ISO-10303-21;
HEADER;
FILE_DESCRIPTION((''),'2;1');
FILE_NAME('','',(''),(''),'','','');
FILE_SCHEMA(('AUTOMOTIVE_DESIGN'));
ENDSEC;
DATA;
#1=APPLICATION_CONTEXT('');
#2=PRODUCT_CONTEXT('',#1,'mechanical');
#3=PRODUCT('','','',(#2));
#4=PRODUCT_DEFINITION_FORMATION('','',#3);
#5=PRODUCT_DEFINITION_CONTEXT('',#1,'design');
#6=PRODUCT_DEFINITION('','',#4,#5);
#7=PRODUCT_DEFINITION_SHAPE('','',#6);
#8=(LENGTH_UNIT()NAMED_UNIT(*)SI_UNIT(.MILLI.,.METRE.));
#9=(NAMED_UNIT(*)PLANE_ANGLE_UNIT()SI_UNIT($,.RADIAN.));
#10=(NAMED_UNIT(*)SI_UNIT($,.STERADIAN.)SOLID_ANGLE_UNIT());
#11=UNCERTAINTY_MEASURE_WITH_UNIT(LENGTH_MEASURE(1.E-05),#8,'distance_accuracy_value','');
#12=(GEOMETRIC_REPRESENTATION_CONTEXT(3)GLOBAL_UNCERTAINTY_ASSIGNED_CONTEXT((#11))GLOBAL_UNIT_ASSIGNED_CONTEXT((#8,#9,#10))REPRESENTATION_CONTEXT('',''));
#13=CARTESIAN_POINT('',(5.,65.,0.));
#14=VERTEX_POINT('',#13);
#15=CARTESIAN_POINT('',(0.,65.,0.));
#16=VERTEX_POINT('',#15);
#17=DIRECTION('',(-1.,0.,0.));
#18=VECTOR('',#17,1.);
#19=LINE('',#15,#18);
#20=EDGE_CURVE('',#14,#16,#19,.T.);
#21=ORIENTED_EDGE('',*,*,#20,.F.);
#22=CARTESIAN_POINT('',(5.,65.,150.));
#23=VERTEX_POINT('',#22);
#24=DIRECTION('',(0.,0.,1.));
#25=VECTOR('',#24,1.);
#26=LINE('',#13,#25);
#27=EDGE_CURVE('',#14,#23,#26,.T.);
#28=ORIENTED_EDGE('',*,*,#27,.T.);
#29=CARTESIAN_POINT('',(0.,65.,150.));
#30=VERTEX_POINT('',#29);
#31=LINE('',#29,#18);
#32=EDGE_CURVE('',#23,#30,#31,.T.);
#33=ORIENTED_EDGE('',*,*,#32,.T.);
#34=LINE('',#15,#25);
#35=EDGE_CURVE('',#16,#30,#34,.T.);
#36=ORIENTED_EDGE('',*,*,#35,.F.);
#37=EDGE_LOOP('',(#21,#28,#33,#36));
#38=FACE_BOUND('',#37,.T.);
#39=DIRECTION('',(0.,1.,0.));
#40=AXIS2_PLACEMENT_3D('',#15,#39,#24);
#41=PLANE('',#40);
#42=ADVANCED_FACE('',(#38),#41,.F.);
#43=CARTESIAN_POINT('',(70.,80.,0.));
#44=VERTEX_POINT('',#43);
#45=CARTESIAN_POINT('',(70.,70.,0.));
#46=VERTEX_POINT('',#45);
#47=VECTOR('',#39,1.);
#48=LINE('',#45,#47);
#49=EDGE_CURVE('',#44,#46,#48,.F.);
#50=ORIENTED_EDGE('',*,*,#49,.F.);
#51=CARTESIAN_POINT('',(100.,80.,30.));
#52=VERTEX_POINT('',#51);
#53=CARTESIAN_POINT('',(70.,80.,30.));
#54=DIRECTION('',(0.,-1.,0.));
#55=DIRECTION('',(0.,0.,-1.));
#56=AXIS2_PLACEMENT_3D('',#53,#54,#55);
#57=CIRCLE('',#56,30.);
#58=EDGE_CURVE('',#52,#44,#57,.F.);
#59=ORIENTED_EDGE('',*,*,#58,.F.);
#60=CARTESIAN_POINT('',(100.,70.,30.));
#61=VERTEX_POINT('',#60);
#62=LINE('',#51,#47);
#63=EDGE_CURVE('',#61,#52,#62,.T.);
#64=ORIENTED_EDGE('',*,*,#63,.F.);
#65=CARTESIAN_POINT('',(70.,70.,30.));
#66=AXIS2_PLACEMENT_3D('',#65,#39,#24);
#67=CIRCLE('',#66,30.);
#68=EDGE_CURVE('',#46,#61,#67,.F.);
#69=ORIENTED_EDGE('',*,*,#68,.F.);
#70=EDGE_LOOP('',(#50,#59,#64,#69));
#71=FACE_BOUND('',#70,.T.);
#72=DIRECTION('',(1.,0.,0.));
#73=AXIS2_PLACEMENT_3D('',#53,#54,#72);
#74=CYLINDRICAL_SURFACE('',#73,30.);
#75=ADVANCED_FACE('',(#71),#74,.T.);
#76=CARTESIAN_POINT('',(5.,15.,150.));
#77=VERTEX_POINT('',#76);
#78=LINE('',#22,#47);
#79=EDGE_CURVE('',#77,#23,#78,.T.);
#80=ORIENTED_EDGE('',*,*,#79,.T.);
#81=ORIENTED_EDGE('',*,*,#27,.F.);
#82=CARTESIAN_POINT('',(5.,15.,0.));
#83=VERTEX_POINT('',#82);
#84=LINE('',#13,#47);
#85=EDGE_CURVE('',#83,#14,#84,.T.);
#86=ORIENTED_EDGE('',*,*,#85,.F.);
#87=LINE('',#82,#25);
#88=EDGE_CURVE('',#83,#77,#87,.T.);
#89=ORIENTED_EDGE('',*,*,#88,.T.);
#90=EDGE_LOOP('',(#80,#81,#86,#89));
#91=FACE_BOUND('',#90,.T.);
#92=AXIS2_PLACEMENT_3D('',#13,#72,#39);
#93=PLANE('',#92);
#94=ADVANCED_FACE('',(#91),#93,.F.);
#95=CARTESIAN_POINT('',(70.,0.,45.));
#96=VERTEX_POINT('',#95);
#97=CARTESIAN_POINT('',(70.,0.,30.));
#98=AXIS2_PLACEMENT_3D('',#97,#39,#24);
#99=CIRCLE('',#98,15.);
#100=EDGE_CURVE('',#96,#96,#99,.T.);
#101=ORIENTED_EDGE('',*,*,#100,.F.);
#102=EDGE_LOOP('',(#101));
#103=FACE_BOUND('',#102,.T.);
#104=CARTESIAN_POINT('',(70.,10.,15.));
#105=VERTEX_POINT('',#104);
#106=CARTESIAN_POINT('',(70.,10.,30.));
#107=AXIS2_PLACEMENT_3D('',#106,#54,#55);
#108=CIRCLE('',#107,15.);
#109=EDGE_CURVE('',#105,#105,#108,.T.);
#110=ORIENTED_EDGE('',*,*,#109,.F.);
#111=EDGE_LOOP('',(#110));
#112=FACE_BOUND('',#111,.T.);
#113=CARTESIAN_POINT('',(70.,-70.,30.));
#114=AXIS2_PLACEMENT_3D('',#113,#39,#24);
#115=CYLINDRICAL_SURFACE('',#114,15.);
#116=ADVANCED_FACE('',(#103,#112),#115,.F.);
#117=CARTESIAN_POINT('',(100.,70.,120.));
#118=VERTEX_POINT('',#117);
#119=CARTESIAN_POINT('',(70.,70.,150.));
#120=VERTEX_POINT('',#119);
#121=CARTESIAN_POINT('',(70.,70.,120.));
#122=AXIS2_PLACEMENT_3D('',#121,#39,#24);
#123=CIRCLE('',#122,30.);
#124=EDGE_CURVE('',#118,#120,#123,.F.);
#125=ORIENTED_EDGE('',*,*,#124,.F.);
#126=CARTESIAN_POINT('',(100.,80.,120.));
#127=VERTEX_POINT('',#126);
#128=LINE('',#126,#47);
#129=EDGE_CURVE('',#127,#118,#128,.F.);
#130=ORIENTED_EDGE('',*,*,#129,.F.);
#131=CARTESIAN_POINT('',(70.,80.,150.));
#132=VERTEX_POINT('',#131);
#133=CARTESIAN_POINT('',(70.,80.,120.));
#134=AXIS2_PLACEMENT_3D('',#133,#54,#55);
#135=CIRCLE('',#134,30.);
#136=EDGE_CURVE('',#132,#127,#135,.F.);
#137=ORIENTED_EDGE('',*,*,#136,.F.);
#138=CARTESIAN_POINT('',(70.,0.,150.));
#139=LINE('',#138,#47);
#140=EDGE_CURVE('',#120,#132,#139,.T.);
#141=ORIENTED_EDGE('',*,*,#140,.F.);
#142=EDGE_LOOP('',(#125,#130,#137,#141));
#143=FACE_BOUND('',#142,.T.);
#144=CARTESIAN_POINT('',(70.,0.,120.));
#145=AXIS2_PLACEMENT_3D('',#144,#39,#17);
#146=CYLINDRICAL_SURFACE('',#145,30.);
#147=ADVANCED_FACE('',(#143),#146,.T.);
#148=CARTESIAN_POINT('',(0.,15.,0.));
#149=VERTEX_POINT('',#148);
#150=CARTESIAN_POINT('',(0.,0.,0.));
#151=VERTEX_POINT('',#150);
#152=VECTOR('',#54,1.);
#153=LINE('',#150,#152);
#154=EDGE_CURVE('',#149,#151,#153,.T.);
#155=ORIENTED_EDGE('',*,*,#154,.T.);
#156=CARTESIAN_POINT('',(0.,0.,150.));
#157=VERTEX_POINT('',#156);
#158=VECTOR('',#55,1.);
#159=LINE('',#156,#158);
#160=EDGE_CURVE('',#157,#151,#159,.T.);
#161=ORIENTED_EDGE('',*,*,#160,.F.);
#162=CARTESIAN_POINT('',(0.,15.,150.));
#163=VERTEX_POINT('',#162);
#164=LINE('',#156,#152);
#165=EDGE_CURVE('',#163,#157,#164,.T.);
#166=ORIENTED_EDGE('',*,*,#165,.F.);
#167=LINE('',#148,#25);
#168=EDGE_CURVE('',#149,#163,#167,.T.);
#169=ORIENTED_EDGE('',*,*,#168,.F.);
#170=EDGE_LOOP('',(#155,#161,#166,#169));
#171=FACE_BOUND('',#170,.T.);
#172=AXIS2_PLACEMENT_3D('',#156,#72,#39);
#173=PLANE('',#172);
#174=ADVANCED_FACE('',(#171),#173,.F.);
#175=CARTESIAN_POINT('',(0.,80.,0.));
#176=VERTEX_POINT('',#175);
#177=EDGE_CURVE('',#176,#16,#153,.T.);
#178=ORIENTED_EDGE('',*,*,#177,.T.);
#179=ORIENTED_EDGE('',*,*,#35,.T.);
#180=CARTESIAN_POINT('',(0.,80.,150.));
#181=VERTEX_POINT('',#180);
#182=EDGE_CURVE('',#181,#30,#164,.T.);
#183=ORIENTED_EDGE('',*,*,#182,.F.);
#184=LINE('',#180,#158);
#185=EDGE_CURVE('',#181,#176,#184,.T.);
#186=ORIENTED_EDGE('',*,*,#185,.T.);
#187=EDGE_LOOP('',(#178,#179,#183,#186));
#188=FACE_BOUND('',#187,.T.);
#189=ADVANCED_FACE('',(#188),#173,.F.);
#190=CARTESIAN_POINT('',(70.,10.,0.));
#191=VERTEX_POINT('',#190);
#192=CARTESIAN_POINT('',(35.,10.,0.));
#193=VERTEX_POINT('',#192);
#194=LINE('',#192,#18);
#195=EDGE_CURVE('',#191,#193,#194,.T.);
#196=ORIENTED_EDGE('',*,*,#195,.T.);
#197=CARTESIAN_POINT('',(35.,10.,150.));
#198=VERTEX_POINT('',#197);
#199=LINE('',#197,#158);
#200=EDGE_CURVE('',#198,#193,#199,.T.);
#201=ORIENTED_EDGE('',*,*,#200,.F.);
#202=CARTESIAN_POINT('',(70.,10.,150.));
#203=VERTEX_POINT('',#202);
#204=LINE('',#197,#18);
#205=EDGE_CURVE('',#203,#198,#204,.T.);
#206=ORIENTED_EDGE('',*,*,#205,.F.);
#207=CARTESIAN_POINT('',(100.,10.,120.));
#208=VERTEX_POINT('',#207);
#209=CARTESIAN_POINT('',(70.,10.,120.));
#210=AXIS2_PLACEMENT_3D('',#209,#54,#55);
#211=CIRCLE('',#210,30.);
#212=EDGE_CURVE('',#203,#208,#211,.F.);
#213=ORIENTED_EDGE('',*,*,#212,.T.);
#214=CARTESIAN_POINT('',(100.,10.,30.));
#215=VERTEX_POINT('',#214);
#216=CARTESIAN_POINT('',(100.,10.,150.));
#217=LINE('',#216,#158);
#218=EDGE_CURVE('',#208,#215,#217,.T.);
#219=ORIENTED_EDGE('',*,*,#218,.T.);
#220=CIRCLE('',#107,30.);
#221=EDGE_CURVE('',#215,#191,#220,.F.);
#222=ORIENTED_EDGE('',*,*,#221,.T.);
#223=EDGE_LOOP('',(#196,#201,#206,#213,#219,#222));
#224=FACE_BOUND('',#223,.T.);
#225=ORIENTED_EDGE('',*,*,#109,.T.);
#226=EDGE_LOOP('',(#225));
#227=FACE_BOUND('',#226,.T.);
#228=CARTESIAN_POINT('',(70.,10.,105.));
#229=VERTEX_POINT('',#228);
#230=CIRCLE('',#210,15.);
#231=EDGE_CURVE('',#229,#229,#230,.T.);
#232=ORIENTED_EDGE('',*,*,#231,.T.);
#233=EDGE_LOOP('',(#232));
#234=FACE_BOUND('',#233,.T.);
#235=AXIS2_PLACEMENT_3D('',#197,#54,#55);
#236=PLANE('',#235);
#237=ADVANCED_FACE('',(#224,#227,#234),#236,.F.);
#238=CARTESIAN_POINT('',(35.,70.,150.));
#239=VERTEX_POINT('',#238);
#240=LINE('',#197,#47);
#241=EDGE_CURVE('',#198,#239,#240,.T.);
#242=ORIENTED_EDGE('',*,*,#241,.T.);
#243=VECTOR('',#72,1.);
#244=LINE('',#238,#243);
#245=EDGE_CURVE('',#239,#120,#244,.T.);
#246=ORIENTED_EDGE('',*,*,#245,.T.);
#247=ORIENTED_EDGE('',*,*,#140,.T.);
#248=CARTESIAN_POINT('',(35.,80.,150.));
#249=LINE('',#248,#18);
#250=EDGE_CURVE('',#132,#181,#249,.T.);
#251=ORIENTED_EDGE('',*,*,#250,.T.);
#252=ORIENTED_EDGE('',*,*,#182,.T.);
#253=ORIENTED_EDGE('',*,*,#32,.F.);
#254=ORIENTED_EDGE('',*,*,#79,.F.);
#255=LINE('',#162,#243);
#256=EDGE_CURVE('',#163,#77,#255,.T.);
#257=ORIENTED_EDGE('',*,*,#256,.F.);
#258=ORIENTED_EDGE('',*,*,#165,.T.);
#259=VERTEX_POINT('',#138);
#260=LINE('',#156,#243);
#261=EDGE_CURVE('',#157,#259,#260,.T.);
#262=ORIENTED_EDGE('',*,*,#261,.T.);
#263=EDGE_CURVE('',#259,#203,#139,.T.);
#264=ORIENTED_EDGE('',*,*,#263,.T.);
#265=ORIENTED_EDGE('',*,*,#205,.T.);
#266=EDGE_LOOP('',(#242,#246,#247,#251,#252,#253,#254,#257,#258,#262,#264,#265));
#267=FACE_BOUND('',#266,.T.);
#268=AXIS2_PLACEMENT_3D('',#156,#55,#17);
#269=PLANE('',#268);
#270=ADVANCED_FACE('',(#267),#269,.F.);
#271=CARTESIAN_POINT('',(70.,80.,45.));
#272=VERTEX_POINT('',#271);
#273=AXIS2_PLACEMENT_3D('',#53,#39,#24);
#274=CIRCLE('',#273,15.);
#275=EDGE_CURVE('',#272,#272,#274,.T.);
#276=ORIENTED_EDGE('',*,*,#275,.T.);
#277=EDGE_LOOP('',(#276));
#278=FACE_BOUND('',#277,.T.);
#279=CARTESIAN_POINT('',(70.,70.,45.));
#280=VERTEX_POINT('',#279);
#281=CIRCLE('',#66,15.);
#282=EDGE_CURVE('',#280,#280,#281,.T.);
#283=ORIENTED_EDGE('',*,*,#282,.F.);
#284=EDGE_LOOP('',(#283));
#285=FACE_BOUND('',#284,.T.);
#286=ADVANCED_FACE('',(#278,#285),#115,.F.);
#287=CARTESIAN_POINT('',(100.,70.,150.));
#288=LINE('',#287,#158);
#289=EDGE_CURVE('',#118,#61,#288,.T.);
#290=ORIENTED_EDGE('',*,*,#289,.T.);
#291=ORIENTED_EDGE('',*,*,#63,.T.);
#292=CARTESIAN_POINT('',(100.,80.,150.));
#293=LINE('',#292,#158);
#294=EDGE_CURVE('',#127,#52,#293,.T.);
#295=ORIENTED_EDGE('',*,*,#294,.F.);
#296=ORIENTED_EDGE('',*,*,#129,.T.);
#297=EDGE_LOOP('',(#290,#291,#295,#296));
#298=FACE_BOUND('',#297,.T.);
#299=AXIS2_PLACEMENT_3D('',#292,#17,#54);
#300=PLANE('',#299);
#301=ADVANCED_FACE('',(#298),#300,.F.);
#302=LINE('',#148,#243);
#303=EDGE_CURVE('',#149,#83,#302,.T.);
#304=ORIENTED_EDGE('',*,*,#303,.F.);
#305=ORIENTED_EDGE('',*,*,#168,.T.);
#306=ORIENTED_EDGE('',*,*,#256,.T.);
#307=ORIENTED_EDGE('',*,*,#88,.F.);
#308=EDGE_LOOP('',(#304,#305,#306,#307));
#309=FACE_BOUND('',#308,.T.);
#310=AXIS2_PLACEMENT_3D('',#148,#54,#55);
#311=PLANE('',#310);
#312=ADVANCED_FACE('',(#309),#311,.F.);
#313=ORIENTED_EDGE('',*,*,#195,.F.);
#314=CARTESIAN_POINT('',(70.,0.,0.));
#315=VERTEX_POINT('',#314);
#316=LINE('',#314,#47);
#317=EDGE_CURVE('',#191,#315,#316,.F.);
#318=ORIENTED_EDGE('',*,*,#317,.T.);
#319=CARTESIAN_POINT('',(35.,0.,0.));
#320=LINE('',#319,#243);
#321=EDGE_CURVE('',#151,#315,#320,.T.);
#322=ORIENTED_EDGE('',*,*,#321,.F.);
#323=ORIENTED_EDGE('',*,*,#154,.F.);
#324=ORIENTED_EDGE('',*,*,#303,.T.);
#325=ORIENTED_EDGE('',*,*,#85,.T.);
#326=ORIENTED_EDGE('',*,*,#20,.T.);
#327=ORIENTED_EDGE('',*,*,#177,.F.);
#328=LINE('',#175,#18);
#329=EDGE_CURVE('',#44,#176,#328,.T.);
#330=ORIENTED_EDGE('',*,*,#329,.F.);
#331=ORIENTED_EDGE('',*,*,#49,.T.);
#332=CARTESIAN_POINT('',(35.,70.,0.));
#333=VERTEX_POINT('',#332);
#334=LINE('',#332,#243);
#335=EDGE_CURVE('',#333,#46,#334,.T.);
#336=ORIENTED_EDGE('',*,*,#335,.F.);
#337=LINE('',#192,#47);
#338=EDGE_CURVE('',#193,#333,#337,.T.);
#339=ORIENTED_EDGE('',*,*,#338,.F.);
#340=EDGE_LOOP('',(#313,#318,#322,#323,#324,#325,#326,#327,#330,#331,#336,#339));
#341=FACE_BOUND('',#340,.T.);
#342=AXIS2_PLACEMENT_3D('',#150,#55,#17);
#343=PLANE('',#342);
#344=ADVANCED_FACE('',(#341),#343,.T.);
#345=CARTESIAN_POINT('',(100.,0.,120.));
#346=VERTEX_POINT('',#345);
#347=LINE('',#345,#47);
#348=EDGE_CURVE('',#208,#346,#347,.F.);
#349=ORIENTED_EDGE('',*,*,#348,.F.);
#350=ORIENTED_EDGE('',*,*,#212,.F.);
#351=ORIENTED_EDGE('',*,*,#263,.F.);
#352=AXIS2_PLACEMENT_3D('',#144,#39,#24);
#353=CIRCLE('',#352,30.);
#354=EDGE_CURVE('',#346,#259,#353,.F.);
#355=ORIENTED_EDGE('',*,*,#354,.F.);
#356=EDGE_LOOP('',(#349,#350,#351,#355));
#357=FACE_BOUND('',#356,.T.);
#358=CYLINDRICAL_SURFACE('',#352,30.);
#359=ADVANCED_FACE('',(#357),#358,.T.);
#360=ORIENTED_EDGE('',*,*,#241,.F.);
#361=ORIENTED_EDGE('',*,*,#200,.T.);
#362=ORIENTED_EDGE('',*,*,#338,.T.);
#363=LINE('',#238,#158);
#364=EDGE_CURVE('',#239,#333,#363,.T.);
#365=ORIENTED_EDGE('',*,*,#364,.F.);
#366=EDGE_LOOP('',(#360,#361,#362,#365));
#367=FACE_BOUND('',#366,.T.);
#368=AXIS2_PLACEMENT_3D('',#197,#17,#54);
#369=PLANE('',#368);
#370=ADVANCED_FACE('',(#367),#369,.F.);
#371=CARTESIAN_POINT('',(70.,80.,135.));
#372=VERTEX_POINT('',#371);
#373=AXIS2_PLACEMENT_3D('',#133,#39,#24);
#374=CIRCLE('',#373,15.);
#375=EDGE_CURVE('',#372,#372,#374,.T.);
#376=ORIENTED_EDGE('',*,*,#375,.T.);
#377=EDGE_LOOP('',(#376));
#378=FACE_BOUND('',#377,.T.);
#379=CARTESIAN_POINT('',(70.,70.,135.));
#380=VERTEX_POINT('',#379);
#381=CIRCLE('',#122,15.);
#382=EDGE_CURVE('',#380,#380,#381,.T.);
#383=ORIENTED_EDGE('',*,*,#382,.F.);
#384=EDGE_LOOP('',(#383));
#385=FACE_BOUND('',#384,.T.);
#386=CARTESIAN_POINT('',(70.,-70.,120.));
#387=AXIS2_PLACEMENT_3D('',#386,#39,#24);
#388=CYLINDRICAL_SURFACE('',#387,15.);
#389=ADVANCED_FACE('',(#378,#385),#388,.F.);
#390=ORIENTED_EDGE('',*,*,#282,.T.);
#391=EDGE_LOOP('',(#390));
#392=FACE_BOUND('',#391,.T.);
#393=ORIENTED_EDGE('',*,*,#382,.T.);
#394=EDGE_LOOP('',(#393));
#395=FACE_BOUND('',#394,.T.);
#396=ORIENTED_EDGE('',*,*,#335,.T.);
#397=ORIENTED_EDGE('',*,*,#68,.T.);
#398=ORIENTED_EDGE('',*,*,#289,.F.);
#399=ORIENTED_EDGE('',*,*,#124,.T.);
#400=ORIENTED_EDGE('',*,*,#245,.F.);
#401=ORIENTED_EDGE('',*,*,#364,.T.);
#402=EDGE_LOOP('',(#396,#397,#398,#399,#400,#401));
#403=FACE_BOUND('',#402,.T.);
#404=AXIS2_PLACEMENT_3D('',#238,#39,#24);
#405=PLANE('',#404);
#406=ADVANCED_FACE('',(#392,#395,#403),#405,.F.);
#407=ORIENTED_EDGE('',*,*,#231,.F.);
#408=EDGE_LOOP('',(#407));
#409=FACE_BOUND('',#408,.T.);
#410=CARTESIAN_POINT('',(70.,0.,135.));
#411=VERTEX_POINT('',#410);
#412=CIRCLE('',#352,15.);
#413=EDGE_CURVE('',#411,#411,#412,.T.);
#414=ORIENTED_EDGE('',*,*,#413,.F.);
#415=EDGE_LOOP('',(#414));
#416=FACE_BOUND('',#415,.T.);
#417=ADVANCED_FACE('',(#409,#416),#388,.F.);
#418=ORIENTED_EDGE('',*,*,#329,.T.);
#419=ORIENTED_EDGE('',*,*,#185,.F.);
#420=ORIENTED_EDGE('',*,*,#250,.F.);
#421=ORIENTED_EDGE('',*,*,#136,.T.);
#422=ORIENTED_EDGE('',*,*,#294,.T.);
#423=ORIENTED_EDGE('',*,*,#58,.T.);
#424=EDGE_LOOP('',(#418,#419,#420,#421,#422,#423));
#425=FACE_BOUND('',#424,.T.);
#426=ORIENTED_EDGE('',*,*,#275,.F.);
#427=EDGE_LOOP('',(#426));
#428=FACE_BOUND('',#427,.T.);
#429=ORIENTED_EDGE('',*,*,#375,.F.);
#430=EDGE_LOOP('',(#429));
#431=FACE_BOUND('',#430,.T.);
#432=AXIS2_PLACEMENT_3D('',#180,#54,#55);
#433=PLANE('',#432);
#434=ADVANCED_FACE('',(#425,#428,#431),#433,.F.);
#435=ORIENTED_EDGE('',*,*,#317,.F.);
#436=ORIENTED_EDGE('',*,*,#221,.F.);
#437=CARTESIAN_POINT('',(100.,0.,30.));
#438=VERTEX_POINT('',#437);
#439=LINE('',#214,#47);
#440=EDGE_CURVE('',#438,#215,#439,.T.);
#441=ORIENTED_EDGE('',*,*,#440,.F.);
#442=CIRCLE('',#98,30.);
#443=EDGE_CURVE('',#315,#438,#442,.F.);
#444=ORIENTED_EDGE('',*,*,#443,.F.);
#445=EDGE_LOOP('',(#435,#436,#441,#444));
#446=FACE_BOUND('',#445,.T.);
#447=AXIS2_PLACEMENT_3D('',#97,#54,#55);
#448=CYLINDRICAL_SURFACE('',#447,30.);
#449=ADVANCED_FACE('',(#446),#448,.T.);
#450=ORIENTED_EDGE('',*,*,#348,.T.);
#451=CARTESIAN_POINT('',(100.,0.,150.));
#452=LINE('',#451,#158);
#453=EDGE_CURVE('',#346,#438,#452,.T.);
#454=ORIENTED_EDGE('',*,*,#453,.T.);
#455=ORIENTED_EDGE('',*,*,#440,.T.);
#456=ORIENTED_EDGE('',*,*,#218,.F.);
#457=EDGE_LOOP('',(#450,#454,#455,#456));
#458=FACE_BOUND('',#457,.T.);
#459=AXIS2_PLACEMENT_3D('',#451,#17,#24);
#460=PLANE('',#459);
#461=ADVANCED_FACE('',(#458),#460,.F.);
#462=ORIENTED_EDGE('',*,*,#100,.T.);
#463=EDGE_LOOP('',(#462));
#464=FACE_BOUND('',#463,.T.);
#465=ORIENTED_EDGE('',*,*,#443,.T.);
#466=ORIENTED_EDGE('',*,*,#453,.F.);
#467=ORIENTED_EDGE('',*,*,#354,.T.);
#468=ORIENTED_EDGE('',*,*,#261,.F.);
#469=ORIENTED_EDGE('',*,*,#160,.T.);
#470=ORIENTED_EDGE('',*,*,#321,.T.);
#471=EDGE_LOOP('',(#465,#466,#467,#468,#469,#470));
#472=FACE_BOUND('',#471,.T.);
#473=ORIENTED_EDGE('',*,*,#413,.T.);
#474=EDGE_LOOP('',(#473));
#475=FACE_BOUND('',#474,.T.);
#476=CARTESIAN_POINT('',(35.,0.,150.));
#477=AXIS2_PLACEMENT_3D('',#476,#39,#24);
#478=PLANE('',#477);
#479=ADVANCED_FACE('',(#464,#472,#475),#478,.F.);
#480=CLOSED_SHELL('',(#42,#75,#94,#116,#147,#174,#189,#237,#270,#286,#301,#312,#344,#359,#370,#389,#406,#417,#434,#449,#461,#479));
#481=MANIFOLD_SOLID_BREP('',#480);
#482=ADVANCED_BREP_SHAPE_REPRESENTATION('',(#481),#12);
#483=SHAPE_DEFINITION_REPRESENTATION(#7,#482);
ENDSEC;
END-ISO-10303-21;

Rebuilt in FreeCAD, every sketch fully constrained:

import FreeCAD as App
import Part
import Sketcher


def edges_at(feature, points):
    """Names of the edges that pass closest to the given points."""
    edges = feature.Shape.Edges
    near = lambda p: min(range(len(edges)), key=lambda i: edges[i].distToShape(Part.Vertex(*p))[0])
    return sorted({f"Edge{near(p) + 1}" for p in points})


def add_polygon(sketch, points):
    """Adds a closed chain of lines whose ends are joined by coincident constraints."""
    first, n = sketch.GeometryCount, len(points)
    for a, b in zip(points, points[1:] + points[:1]):
        sketch.addGeometry(Part.LineSegment(App.Vector(*a, 0), App.Vector(*b, 0)), False)
    for i in range(n):
        sketch.addConstraint(Sketcher.Constraint("Coincident", first + i, 2, first + (i + 1) % n, 1))

doc = App.newDocument("Part")
params = doc.addObject("Spreadsheet::Sheet", "Params")
for row, (alias, value) in enumerate([
    ("sketch1_width", "100 mm"),
    ("sketch1_width2", "65 mm"),
    ("sketch1_height", "10 mm"),
    ("sketch1_height2", "60 mm"),
    ("pad1_length", "150 mm"),
    ("sketch2_width", "5 mm"),
    ("sketch2_height", "50 mm"),
    ("pocket1_length", "150 mm"),
    ("sketch3_diameter", "30 mm"),
    ("pocket2_length", "150 mm"),
    ("fillet_radius", "30 mm"),
], start=1):
    params.set(f"A{row}", alias)
    params.set(f"B{row}", "=" + value)
    params.setAlias(f"B{row}", alias)

body = doc.addObject("PartDesign::Body", "Body")

sketch1 = body.newObject("Sketcher::SketchObject", "Sketch")
sketch1.AttachmentSupport = (doc.getObject("XY_Plane"), [""])
sketch1.MapMode = "FlatFace"
add_polygon(sketch1, [(0, 0), (100, 0), (100, 10), (35, 10), (35, 70), (100, 70), (100, 80), (0, 80)])
sketch1.addConstraint(Sketcher.Constraint("Horizontal", 0))
sketch1.addConstraint(Sketcher.Constraint("Vertical", 1))
sketch1.addConstraint(Sketcher.Constraint("Horizontal", 2))
sketch1.addConstraint(Sketcher.Constraint("Vertical", 3))
sketch1.addConstraint(Sketcher.Constraint("Horizontal", 4))
sketch1.addConstraint(Sketcher.Constraint("Vertical", 5))
sketch1.addConstraint(Sketcher.Constraint("Horizontal", 6))
sketch1.addConstraint(Sketcher.Constraint("Vertical", 7))
sketch1.addConstraint(Sketcher.Constraint("Coincident", 7, 2, -1, 1))
sketch1.addConstraint(Sketcher.Constraint("Vertical", 1, 2, 4, 2))
sketch1.addConstraint(Sketcher.Constraint("Equal", 1, 5))
sketch1.addConstraint(Sketcher.Constraint("DistanceX", 0, 1, 0, 2, 100.0))
sketch1.addConstraint(Sketcher.Constraint("DistanceX", 2, 2, 2, 1, 65.0))
sketch1.addConstraint(Sketcher.Constraint("DistanceY", 1, 1, 1, 2, 10.0))
sketch1.addConstraint(Sketcher.Constraint("DistanceY", 3, 1, 3, 2, 60.0))
sketch1.setExpression("Constraints[19]", "Params.sketch1_width")
sketch1.setExpression("Constraints[20]", "Params.sketch1_width2")
sketch1.setExpression("Constraints[21]", "Params.sketch1_height")
sketch1.setExpression("Constraints[22]", "Params.sketch1_height2")
pad1 = body.newObject("PartDesign::Pad", "Pad")
pad1.Profile = sketch1
pad1.setExpression("Length", "Params.pad1_length")

sketch2 = body.newObject("Sketcher::SketchObject", "Sketch001")
sketch2.AttachmentSupport = (doc.getObject("XY_Plane"), [""])
sketch2.MapMode = "FlatFace"
sketch2.AttachmentOffset = App.Placement(App.Vector(0, 0, 150), App.Rotation())
add_polygon(sketch2, [(0, 65), (0, 15), (5, 15), (5, 65)])
sketch2.addConstraint(Sketcher.Constraint("Vertical", 0))
sketch2.addConstraint(Sketcher.Constraint("Horizontal", 1))
sketch2.addConstraint(Sketcher.Constraint("Vertical", 2))
sketch2.addConstraint(Sketcher.Constraint("Horizontal", 3))
sketch2.addConstraint(Sketcher.Constraint("PointOnObject", 0, 2, -2))
sketch2.addConstraint(Sketcher.Constraint("DistanceX", 1, 1, 1, 2, 5.0))
sketch2.addConstraint(Sketcher.Constraint("DistanceY", 0, 2, 0, 1, 50.0))
sketch2.addConstraint(Sketcher.Constraint("DistanceY", -1, 1, 0, 2, 15.0))
sketch2.setExpression("Constraints[9]", "Params.sketch2_width")
sketch2.setExpression("Constraints[10]", "Params.sketch2_height")
pocket1 = body.newObject("PartDesign::Pocket", "Pocket")
pocket1.Profile = sketch2
pocket1.setExpression("Length", "Params.pocket1_length")

sketch3 = body.newObject("Sketcher::SketchObject", "Sketch002")
sketch3.AttachmentSupport = (doc.getObject("XZ_Plane"), [""])
sketch3.MapMode = "FlatFace"
sketch3.AttachmentOffset = App.Placement(App.Vector(0, 0, -80), App.Rotation())
sketch3.addGeometry(Part.Circle(App.Vector(70, 30, 0), App.Vector(0, 0, 1), 15), False)
sketch3.addGeometry(Part.Circle(App.Vector(70, 120, 0), App.Vector(0, 0, 1), 15), False)
sketch3.addConstraint(Sketcher.Constraint("Equal", 0, 1))
sketch3.addConstraint(Sketcher.Constraint("Vertical", 0, 3, 1, 3))
sketch3.addConstraint(Sketcher.Constraint("Diameter", 0, 30.0))
sketch3.addConstraint(Sketcher.Constraint("DistanceX", -1, 1, 0, 3, 70.0))
sketch3.addConstraint(Sketcher.Constraint("DistanceY", -1, 1, 0, 3, 30.0))
sketch3.addConstraint(Sketcher.Constraint("DistanceY", -1, 1, 1, 3, 120.0))
sketch3.setExpression("Constraints[2]", "Params.sketch3_diameter")
pocket2 = body.newObject("PartDesign::Pocket", "Pocket001")
pocket2.Profile = sketch3
pocket2.setExpression("Length", "Params.pocket2_length")
pocket2.Reversed = True
doc.recompute()

fillet = body.newObject("PartDesign::Fillet", "Fillet")
fillet.Base = (pocket2, edges_at(pocket2, [
    (100, 75, 0),
    (100, 5, 0),
    (100, 5, 150),
    (100, 75, 150),
]))
fillet.setExpression("Radius", "Params.fillet_radius")

doc.recompute()
